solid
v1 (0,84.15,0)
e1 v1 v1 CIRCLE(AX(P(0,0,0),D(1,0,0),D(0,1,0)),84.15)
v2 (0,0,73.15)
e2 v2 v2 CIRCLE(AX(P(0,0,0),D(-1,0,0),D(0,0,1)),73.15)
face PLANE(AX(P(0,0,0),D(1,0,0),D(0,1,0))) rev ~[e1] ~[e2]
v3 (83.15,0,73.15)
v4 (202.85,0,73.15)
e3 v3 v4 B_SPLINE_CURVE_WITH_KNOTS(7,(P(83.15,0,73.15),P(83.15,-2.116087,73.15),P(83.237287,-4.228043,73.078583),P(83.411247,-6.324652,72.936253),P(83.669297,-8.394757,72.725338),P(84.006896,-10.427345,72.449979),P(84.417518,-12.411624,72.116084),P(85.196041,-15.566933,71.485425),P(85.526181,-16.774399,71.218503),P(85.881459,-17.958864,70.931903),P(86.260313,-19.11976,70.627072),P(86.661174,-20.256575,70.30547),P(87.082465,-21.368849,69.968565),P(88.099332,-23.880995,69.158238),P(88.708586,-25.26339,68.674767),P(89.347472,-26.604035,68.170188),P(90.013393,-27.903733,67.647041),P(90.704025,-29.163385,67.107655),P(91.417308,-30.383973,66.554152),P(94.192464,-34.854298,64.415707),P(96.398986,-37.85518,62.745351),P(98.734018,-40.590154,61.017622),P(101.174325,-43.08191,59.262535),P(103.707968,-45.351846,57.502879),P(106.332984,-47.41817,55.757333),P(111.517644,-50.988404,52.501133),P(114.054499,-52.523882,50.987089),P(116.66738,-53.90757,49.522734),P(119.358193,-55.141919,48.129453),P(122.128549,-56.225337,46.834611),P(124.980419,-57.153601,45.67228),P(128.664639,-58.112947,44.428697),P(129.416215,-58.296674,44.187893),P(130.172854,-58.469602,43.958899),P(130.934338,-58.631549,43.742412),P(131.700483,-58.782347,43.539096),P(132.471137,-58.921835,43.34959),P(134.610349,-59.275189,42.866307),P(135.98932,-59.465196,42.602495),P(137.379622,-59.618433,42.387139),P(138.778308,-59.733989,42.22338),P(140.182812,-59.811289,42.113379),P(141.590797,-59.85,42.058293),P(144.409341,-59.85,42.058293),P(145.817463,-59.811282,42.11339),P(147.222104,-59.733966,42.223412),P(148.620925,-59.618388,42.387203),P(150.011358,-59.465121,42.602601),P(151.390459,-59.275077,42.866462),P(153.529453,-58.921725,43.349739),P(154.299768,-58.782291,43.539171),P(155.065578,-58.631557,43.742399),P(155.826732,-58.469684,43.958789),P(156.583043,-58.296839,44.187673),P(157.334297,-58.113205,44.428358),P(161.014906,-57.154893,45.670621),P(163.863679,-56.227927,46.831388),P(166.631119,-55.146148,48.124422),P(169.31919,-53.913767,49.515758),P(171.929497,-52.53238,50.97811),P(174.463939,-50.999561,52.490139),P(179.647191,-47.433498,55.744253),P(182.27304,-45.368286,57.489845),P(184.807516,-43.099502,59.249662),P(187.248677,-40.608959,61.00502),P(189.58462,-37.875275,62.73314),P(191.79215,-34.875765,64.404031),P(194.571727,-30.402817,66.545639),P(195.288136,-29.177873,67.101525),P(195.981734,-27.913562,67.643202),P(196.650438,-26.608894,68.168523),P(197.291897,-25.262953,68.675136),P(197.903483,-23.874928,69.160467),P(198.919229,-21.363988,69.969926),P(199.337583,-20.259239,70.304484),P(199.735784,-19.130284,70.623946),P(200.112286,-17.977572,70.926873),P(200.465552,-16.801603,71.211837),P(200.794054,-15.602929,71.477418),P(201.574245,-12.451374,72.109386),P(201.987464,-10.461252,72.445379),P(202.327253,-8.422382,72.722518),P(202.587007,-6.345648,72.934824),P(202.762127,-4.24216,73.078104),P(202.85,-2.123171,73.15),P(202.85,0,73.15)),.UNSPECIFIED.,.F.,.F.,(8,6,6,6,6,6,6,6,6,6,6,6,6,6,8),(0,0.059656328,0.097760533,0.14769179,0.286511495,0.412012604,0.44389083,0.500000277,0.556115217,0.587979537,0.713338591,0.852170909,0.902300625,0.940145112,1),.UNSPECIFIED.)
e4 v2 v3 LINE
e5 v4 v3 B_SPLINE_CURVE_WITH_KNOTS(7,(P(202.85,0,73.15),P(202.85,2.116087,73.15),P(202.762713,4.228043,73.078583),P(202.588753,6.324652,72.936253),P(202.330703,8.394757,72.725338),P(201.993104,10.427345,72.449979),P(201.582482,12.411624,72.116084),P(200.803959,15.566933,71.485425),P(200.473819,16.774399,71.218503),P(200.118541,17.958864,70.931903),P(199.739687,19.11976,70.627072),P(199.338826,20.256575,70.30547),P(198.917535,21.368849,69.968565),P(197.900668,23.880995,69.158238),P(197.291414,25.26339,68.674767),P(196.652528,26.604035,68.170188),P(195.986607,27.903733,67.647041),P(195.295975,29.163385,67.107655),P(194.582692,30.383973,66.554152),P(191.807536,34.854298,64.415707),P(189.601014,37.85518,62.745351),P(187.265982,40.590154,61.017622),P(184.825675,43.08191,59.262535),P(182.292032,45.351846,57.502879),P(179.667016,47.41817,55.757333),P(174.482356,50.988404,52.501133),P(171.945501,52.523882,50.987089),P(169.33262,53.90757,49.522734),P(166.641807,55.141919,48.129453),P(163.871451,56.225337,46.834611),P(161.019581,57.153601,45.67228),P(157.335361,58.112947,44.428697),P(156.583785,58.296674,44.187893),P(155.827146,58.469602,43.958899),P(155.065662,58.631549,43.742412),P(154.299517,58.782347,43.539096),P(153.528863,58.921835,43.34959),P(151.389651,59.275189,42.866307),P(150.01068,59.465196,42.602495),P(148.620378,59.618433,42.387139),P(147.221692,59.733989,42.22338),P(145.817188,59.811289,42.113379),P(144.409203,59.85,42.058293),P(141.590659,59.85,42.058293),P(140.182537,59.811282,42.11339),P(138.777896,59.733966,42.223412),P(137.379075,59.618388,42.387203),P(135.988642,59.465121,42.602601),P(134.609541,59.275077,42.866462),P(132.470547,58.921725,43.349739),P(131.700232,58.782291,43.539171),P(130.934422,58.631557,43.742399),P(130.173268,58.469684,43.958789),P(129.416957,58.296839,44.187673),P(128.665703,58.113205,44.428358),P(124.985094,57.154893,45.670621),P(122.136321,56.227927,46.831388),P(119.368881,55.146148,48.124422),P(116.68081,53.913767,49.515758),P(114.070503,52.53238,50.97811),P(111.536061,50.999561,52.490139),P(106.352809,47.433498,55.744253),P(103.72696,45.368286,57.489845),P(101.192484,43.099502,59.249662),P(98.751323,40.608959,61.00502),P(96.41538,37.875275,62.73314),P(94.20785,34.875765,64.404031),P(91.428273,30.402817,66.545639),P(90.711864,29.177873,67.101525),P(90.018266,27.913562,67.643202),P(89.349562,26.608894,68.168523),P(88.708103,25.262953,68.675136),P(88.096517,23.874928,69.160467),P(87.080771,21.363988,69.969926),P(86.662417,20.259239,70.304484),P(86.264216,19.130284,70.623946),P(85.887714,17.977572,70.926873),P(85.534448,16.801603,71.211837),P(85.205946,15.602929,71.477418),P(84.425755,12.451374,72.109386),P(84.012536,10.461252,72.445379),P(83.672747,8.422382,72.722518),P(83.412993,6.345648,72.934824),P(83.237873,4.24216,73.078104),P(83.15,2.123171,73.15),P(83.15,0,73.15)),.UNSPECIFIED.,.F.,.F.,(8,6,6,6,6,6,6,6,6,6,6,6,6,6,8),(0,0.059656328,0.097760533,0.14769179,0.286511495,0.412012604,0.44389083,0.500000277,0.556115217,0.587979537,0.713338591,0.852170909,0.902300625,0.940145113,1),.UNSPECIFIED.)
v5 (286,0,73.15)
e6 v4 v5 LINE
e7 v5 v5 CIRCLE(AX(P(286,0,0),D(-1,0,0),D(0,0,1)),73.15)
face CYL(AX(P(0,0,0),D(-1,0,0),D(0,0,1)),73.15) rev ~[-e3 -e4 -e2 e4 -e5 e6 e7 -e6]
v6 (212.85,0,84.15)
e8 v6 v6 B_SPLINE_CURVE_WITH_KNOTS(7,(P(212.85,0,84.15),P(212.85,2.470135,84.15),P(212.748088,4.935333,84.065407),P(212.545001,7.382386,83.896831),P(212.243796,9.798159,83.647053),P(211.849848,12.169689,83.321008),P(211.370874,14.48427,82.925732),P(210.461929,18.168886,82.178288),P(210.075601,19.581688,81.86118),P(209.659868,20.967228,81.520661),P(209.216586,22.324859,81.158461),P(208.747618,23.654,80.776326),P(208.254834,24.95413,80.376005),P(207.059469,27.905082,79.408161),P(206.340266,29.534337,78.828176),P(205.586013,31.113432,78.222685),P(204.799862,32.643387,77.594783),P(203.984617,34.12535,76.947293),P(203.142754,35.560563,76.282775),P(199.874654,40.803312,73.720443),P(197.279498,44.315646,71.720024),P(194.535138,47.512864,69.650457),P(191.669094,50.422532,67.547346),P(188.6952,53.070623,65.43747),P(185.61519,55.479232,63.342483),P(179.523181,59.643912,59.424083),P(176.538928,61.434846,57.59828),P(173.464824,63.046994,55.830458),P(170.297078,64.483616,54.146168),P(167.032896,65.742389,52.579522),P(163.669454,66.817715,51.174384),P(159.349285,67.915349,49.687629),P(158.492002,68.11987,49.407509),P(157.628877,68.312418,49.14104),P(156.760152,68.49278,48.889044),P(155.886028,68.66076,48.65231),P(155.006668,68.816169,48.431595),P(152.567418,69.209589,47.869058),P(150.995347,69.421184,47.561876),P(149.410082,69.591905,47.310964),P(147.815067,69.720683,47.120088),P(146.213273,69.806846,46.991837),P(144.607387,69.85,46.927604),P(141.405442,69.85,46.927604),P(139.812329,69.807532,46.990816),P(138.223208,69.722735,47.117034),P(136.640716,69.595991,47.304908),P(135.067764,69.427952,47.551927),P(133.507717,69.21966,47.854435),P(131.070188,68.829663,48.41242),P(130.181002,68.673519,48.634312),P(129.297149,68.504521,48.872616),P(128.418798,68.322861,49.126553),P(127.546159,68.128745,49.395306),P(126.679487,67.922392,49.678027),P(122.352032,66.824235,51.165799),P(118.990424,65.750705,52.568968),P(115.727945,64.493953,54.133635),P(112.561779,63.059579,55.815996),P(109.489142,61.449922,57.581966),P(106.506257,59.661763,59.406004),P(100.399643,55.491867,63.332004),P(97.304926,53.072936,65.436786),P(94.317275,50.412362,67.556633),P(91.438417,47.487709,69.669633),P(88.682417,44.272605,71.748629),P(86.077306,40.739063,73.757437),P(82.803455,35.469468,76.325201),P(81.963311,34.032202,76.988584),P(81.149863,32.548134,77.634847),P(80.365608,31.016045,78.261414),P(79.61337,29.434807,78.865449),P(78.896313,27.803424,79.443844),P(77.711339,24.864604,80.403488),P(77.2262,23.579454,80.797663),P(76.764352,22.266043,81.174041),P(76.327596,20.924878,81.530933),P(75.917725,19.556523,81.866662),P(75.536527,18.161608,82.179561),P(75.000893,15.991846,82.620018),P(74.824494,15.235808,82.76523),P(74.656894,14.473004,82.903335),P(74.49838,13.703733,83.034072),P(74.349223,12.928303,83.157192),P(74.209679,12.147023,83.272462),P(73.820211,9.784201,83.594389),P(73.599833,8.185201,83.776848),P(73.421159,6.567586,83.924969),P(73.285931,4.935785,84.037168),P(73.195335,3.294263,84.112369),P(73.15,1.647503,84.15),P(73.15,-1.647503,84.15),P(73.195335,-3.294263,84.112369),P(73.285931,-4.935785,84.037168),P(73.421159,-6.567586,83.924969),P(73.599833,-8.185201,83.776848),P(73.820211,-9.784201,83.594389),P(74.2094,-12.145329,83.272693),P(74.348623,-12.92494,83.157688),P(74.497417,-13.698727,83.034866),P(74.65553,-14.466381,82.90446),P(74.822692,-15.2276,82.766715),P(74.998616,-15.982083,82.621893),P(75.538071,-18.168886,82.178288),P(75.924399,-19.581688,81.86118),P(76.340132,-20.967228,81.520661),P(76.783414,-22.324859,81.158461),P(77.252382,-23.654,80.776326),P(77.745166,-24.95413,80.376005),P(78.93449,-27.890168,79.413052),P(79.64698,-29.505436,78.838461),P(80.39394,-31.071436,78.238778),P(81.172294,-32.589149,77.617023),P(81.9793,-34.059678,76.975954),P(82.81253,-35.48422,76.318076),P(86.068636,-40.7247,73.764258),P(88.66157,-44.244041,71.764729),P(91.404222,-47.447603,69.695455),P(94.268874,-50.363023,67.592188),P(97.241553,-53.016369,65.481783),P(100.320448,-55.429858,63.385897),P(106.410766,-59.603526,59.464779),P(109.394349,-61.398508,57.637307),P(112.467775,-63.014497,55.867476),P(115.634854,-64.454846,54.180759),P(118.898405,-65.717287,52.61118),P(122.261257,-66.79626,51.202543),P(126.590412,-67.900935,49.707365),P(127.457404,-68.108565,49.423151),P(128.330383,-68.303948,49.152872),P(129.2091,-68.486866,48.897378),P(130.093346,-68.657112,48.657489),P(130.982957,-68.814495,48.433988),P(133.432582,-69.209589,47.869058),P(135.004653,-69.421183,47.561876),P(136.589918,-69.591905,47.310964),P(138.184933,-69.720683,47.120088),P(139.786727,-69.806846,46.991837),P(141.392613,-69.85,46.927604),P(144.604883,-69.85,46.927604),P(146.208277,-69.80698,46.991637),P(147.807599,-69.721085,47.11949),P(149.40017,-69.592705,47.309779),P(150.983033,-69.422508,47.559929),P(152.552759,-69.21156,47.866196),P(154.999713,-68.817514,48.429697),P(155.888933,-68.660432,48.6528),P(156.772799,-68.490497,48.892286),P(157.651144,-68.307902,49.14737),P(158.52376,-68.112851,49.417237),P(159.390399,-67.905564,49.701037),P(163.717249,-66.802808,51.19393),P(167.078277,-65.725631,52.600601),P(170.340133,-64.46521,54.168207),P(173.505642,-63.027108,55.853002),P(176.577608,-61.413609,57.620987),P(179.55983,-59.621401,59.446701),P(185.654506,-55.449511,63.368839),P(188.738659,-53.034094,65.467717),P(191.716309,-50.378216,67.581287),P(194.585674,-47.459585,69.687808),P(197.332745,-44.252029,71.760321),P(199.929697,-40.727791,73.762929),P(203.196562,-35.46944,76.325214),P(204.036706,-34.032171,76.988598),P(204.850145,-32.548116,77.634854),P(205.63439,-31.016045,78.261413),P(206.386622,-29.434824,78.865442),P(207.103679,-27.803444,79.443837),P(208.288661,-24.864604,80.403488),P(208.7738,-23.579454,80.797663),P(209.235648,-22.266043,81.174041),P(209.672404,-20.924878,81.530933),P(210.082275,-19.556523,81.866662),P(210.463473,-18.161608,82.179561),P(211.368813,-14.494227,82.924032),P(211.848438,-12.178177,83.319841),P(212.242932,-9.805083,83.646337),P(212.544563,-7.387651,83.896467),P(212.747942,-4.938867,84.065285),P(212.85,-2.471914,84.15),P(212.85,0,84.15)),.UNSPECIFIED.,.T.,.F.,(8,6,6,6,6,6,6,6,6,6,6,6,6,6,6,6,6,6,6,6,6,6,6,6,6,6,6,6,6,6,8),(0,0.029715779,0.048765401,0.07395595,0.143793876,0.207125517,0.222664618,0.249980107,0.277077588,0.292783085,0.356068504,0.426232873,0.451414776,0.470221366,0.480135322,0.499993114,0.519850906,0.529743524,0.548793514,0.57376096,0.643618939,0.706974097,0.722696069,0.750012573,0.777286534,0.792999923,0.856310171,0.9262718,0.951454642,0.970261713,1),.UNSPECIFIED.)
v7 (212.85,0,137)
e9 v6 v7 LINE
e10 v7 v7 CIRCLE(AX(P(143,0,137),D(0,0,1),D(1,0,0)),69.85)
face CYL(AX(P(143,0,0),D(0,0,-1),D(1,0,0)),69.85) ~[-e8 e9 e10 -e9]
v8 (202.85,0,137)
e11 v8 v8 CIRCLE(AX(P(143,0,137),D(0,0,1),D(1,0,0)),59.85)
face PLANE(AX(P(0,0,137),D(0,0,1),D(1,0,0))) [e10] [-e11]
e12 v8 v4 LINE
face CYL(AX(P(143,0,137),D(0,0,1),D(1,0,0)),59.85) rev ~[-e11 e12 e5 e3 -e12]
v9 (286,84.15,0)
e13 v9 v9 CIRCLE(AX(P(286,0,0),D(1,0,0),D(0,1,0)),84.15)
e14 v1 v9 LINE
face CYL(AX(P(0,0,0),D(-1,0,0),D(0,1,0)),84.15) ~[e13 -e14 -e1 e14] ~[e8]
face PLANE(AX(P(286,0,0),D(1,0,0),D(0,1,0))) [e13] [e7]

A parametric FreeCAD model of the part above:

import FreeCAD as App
import Part
import Sketcher

V = App.Vector
Q = App.Units.Quantity

doc = App.newDocument("Part")
body = doc.addObject("PartDesign::Body", "Body")

sketch1 = body.newObject("Sketcher::SketchObject", "Sketch")
sketch1.AttachmentSupport = (doc.getObject("YZ_Plane"), [""])
sketch1.MapMode = "FlatFace"
sketch1.addGeometry(Part.Circle(V(0, 0, 0), V(0, 0, 1), 84.15), False)
sketch1.addConstraint(Sketcher.Constraint("Coincident", 0, 3, -1, 1))
sketch1.addConstraint(Sketcher.Constraint("Diameter", 0, Q("168.3 mm")))
pad1 = body.newObject("PartDesign::Pad", "Pad")
pad1.Profile = sketch1
pad1.Length = 286

sketch2 = body.newObject("Sketcher::SketchObject", "Sketch001")
sketch2.AttachmentSupport = (doc.getObject("XY_Plane"), [""])
sketch2.MapMode = "FlatFace"
sketch2.addGeometry(Part.Circle(V(143, 0, 0), V(0, 0, 1), 69.85), False)
sketch2.addConstraint(Sketcher.Constraint("PointOnObject", 0, 3, -1))
sketch2.addConstraint(Sketcher.Constraint("Diameter", 0, Q("139.7 mm")))
sketch2.addConstraint(Sketcher.Constraint("DistanceX", -1, 1, 0, 3, Q("143 mm")))
pad2 = body.newObject("PartDesign::Pad", "Pad001")
pad2.Profile = sketch2
pad2.Length = 137

sketch3 = body.newObject("Sketcher::SketchObject", "Sketch002")
sketch3.AttachmentSupport = (doc.getObject("YZ_Plane"), [""])
sketch3.MapMode = "FlatFace"
sketch3.addGeometry(Part.Circle(V(0, 0, 0), V(0, 0, 1), 73.15), False)
sketch3.addConstraint(Sketcher.Constraint("Coincident", 0, 3, -1, 1))
sketch3.addConstraint(Sketcher.Constraint("Diameter", 0, Q("146.3 mm")))
pocket1 = body.newObject("PartDesign::Pocket", "Pocket")
pocket1.Profile = sketch3
pocket1.Type = "ThroughAll"
pocket1.Reversed = True

sketch4 = body.newObject("Sketcher::SketchObject", "Sketch003")
sketch4.AttachmentSupport = (doc.getObject("XY_Plane"), [""])
sketch4.MapMode = "FlatFace"
sketch4.AttachmentOffset = App.Placement(V(0, 0, 137), App.Rotation())
sketch4.addGeometry(Part.Circle(V(143, 0, 0), V(0, 0, 1), 59.85), False)
sketch4.addConstraint(Sketcher.Constraint("PointOnObject", 0, 3, -1))
sketch4.addConstraint(Sketcher.Constraint("Diameter", 0, Q("119.7 mm")))
sketch4.addConstraint(Sketcher.Constraint("DistanceX", -1, 1, 0, 3, Q("143 mm")))
pocket2 = body.newObject("PartDesign::Pocket", "Pocket001")
pocket2.Profile = sketch4
pocket2.Type = "UpToFirst"

doc.recompute()
